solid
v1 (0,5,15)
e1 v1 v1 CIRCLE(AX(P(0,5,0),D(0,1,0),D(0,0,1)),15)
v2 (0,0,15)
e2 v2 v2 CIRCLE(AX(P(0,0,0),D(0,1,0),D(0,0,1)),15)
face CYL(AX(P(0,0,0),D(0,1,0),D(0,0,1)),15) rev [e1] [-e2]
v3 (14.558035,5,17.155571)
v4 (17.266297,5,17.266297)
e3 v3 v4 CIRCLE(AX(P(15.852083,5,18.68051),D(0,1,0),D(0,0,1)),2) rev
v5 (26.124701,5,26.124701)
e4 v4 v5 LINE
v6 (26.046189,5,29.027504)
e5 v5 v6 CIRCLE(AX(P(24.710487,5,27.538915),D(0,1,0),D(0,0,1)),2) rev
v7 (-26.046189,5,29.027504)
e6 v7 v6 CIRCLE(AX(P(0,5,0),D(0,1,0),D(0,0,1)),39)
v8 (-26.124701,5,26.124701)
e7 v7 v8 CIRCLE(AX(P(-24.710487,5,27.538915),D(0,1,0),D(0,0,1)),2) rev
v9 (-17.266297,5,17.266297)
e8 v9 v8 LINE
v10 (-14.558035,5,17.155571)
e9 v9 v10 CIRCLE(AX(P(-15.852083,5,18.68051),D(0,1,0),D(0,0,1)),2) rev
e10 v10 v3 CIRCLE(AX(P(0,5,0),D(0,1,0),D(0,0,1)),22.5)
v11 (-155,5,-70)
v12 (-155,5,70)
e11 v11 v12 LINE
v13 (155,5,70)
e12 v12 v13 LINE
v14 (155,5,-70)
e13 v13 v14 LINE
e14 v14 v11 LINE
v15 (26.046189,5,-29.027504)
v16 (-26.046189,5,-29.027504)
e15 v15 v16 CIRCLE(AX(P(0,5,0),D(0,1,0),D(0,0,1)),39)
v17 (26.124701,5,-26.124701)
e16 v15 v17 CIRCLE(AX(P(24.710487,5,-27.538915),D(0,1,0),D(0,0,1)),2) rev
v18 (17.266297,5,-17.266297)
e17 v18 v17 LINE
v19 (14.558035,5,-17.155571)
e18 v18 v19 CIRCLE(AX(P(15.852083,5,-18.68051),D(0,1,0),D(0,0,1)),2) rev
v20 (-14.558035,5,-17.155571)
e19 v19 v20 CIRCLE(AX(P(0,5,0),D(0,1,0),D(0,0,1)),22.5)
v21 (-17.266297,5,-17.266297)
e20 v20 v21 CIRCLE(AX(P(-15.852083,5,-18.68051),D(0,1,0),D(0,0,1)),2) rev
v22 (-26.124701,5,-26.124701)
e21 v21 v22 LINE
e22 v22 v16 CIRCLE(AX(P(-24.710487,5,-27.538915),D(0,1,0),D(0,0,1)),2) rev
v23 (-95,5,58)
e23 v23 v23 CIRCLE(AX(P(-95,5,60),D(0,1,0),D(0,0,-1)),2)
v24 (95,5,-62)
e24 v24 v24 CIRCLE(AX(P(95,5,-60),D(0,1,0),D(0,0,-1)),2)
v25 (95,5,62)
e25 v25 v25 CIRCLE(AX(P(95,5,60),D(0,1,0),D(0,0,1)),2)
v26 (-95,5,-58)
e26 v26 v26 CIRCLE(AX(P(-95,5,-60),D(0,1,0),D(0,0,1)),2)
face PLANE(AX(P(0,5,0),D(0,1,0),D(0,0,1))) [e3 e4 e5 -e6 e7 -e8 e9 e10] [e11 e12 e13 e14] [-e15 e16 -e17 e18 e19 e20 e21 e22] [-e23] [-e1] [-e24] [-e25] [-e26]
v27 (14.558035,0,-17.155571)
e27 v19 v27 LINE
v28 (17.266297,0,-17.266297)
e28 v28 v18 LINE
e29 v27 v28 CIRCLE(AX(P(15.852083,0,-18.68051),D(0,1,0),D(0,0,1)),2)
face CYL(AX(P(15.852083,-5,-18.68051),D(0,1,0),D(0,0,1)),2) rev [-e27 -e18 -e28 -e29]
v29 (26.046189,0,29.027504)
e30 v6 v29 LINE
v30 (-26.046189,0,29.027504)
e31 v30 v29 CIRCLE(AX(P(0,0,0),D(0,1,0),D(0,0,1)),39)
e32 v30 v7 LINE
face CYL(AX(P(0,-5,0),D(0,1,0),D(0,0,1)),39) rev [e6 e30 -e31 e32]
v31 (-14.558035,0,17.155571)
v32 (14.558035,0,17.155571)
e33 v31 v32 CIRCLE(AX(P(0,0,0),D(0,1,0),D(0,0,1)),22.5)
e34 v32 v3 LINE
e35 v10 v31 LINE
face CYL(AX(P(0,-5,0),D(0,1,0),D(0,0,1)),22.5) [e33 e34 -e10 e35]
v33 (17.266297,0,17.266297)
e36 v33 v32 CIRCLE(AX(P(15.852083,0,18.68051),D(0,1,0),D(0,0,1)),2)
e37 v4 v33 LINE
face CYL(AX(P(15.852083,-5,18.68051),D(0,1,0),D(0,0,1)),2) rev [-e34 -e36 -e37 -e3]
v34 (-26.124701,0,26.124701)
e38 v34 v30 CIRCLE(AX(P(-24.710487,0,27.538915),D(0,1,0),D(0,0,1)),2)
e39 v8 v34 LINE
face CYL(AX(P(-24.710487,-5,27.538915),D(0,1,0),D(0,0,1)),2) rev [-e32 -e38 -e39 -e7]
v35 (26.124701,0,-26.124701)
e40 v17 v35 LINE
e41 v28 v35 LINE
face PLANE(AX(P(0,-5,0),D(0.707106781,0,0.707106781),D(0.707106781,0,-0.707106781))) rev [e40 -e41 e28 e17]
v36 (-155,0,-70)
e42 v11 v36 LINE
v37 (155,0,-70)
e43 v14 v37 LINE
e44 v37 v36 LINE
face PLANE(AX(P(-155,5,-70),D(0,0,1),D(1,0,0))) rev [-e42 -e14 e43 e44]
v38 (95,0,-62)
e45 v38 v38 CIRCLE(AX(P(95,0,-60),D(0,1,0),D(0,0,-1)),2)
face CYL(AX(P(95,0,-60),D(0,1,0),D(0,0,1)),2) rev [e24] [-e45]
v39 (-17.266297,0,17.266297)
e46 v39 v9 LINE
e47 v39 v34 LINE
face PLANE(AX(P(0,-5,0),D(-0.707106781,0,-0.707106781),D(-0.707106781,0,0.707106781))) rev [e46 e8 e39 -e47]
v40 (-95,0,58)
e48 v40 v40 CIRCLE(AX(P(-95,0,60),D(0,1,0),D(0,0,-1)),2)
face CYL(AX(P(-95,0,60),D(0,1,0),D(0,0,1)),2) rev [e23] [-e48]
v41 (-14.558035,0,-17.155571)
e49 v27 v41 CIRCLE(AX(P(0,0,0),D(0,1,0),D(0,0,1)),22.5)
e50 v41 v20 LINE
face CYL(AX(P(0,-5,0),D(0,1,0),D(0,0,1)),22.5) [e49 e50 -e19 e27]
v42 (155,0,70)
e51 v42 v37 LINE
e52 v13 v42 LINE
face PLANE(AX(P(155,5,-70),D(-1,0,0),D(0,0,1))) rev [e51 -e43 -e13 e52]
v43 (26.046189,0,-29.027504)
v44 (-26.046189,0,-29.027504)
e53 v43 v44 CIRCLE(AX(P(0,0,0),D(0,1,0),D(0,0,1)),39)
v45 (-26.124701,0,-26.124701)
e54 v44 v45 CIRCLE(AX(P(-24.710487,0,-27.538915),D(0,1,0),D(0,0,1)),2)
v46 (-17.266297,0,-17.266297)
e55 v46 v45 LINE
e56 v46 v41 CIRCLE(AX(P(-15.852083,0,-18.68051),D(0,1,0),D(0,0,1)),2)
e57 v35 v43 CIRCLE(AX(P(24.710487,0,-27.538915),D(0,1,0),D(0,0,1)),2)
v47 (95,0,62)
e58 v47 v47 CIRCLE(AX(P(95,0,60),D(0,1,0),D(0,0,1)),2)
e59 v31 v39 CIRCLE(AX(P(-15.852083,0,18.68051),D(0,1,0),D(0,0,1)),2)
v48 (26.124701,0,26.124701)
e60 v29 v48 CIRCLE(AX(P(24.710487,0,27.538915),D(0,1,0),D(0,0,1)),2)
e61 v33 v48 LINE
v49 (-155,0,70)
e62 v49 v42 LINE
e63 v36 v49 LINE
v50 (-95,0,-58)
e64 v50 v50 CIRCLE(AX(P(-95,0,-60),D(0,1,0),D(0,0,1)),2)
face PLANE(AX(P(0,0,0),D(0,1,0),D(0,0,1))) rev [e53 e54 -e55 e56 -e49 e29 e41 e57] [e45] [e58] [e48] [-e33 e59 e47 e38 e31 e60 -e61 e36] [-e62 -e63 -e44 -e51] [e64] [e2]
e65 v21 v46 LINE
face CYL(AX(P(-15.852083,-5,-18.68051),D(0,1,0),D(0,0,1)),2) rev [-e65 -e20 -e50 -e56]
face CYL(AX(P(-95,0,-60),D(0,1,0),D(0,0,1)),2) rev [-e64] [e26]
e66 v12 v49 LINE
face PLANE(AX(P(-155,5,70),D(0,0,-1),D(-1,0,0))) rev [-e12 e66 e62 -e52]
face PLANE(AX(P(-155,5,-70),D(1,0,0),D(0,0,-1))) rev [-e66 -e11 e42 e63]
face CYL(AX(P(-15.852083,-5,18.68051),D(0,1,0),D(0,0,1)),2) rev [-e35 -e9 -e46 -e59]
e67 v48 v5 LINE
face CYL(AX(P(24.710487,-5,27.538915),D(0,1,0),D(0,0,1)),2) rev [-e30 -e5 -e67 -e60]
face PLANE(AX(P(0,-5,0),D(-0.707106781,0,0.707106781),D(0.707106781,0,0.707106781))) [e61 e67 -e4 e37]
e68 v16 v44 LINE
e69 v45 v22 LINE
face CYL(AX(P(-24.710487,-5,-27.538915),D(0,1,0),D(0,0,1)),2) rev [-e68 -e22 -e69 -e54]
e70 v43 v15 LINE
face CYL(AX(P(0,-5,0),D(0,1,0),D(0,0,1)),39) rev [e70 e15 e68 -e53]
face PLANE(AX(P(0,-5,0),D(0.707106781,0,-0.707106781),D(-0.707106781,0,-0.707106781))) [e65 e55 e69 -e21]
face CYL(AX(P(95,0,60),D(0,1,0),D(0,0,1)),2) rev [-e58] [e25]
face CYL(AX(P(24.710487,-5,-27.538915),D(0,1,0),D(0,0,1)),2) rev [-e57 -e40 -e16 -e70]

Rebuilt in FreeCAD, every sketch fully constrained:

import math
import FreeCAD as App
import Part
import Sketcher
Q = App.Units.Quantity


def edges_at(feature, points):
    """Names of the edges that pass closest to the given points."""
    edges = feature.Shape.Edges
    near = lambda p: min(range(len(edges)), key=lambda i: edges[i].distToShape(Part.Vertex(*p))[0])
    return sorted({f"Edge{near(p) + 1}" for p in points})


def add_polygon(sketch, points):
    """Adds a closed chain of lines whose ends are joined by coincident constraints."""
    first, n = sketch.GeometryCount, len(points)
    for a, b in zip(points, points[1:] + points[:1]):
        sketch.addGeometry(Part.LineSegment(App.Vector(*a, 0), App.Vector(*b, 0)), False)
    for i in range(n):
        sketch.addConstraint(Sketcher.Constraint("Coincident", first + i, 2, first + (i + 1) % n, 1))

doc = App.newDocument("Part")
params = doc.addObject("Spreadsheet::Sheet", "Params")
for row, (alias, value) in enumerate([
    ("sketch1_width", "310 mm"),
    ("sketch1_height", "140 mm"),
    ("pad1_length", "5 mm"),
    ("sketch2_diameter", "30 mm"),
    ("sketch3_diameter", "4 mm"),
    ("sketch4_radius", "39 mm"),
    ("sketch4_radius2", "22.5 mm"),
    ("pocket3_length", "10 mm"),
    ("fillet_radius", "2 mm"),
], start=1):
    params.set(f"A{row}", alias)
    params.set(f"B{row}", "=" + value)
    params.setAlias(f"B{row}", alias)

body = doc.addObject("PartDesign::Body", "Body")

# Sketch on XZ plane
sketch1 = body.newObject("Sketcher::SketchObject", "Sketch")
sketch1.AttachmentSupport = (doc.getObject("XZ_Plane"), [""])
sketch1.MapMode = "FlatFace"
add_polygon(sketch1, [(-155, -70), (-155, 70), (155, 70), (155, -70)])  # lines 0-3
sketch1.addConstraint(Sketcher.Constraint("Vertical", 0))
sketch1.addConstraint(Sketcher.Constraint("Horizontal", 1))
sketch1.addConstraint(Sketcher.Constraint("Vertical", 2))
sketch1.addConstraint(Sketcher.Constraint("Horizontal", 3))
sketch1.addConstraint(Sketcher.Constraint("Symmetric", 0, 2, 2, 2, -1, 1))
sketch1.addConstraint(Sketcher.Constraint("DistanceX", 1, 1, 1, 2, Q("310 mm")))
sketch1.addConstraint(Sketcher.Constraint("DistanceY", 0, 1, 0, 2, Q("140 mm")))
sketch1.setExpression("Constraints[9]", "Params.sketch1_width")
sketch1.setExpression("Constraints[10]", "Params.sketch1_height")
pad1 = body.newObject("PartDesign::Pad", "Pad")
pad1.Profile = sketch1
pad1.setExpression("Length", "Params.pad1_length")
pad1.Reversed = True

# Sketch on XZ plane
sketch2 = body.newObject("Sketcher::SketchObject", "Sketch001")
sketch2.AttachmentSupport = (doc.getObject("XZ_Plane"), [""])
sketch2.MapMode = "FlatFace"
sketch2.AttachmentOffset = App.Placement(App.Vector(0, 0, -5), App.Rotation())
sketch2.addGeometry(Part.Circle(App.Vector(0, 0, 0), App.Vector(0, 0, 1), 15), False)
sketch2.addConstraint(Sketcher.Constraint("Coincident", 0, 3, -1, 1))
sketch2.addConstraint(Sketcher.Constraint("Diameter", 0, Q("30 mm")))
sketch2.setExpression("Constraints[1]", "Params.sketch2_diameter")
pocket1 = body.newObject("PartDesign::Pocket", "Pocket")
pocket1.Profile = sketch2
pocket1.Type = "ThroughAll"
pocket1.Reversed = True

# Sketch on XZ plane
sketch3 = body.newObject("Sketcher::SketchObject", "Sketch002")
sketch3.AttachmentSupport = (doc.getObject("XZ_Plane"), [""])
sketch3.MapMode = "FlatFace"
sketch3.AttachmentOffset = App.Placement(App.Vector(0, 0, -5), App.Rotation())
sketch3.addGeometry(Part.Circle(App.Vector(-95, -60, 0), App.Vector(0, 0, 1), 2), False)
sketch3.addGeometry(Part.Circle(App.Vector(95, -60, 0), App.Vector(0, 0, 1), 2), False)
sketch3.addGeometry(Part.Circle(App.Vector(95, 60, 0), App.Vector(0, 0, 1), 2), False)
sketch3.addGeometry(Part.Circle(App.Vector(-95, 60, 0), App.Vector(0, 0, 1), 2), False)
sketch3.addConstraint(Sketcher.Constraint("Equal", 0, 1))
sketch3.addConstraint(Sketcher.Constraint("Equal", 1, 2))
sketch3.addConstraint(Sketcher.Constraint("Equal", 2, 3))
sketch3.addConstraint(Sketcher.Constraint("Symmetric", 0, 3, 2, 3, -1, 1))
sketch3.addConstraint(Sketcher.Constraint("Symmetric", 1, 3, 3, 3, -1, 1))
sketch3.addConstraint(Sketcher.Constraint("Symmetric", 0, 3, 1, 3, -2))
sketch3.addConstraint(Sketcher.Constraint("Diameter", 0, Q("4 mm")))
sketch3.addConstraint(Sketcher.Constraint("DistanceX", 0, 3, -1, 1, Q("95 mm")))
sketch3.addConstraint(Sketcher.Constraint("DistanceY", 0, 3, -1, 1, Q("60 mm")))
sketch3.setExpression("Constraints[6]", "Params.sketch3_diameter")
pocket2 = body.newObject("PartDesign::Pocket", "Pocket001")
pocket2.Profile = sketch3
pocket2.Type = "ThroughAll"
pocket2.Reversed = True

# Sketch on XZ plane
sketch4 = body.newObject("Sketcher::SketchObject", "Sketch003")
sketch4.AttachmentSupport = (doc.getObject("XZ_Plane"), [""])
sketch4.MapMode = "FlatFace"
sketch4.AttachmentOffset = App.Placement(App.Vector(0, 0, -5), App.Rotation())
sketch4.addGeometry(Part.LineSegment(App.Vector(28, 28, 0), App.Vector(16, 16, 0)), False)
sketch4.addGeometry(Part.ArcOfCircle(Part.Circle(App.Vector(0, 0, 0), App.Vector(0, 0, 1), 23), math.radians(45), math.radians(135)), False)
sketch4.addGeometry(Part.LineSegment(App.Vector(-16, 16, 0), App.Vector(-28, 28, 0)), False)
sketch4.addGeometry(Part.ArcOfCircle(Part.Circle(App.Vector(0, 0, 0), App.Vector(0, 0, 1), 39), math.radians(45), math.radians(135)), False)
sketch4.addGeometry(Part.ArcOfCircle(Part.Circle(App.Vector(0, 0, 0), App.Vector(0, 0, 1), 23), math.radians(-135), math.radians(-45)), False)
sketch4.addGeometry(Part.LineSegment(App.Vector(16, -16, 0), App.Vector(28, -28, 0)), False)
sketch4.addGeometry(Part.ArcOfCircle(Part.Circle(App.Vector(0, 0, 0), App.Vector(0, 0, 1), 39), math.radians(-135), math.radians(-45)), False)
sketch4.addGeometry(Part.LineSegment(App.Vector(-28, -28, 0), App.Vector(-16, -16, 0)), False)
sketch4.addConstraint(Sketcher.Constraint("Coincident", 0, 2, 1, 1))
sketch4.addConstraint(Sketcher.Constraint("Coincident", 1, 2, 2, 1))
sketch4.addConstraint(Sketcher.Constraint("Coincident", 2, 2, 3, 2))
sketch4.addConstraint(Sketcher.Constraint("Coincident", 3, 1, 0, 1))
sketch4.addConstraint(Sketcher.Constraint("Coincident", 4, 2, 5, 1))
sketch4.addConstraint(Sketcher.Constraint("Coincident", 5, 2, 6, 2))
sketch4.addConstraint(Sketcher.Constraint("Coincident", 6, 1, 7, 1))
sketch4.addConstraint(Sketcher.Constraint("Coincident", 7, 2, 4, 1))
sketch4.addConstraint(Sketcher.Constraint("Coincident", 1, 3, -1, 1))
sketch4.addConstraint(Sketcher.Constraint("Coincident", 3, 3, -1, 1))
sketch4.addConstraint(Sketcher.Constraint("Coincident", 4, 3, -1, 1))
sketch4.addConstraint(Sketcher.Constraint("Coincident", 6, 3, -1, 1))
sketch4.addConstraint(Sketcher.Constraint("Equal", 1, 4))
sketch4.addConstraint(Sketcher.Constraint("Equal", 3, 6))
sketch4.addConstraint(Sketcher.Constraint("Perpendicular", 0, 2))
sketch4.addConstraint(Sketcher.Constraint("Parallel", 2, 5))
sketch4.addConstraint(Sketcher.Constraint("Perpendicular", 5, 7))
sketch4.addConstraint(Sketcher.Constraint("Horizontal", 0, 2, 1, 2))
sketch4.addConstraint(Sketcher.Constraint("Horizontal", 2, 2, 3, 1))
sketch4.addConstraint(Sketcher.Constraint("Horizontal", 5, 2, 6, 1))
sketch4.addConstraint(Sketcher.Constraint("Vertical", 0, 2, 4, 2))
sketch4.addConstraint(Sketcher.Constraint("Radius", 3, Q("39 mm")))
sketch4.addConstraint(Sketcher.Constraint("Radius", 1, Q("22.5 mm")))
sketch4.addConstraint(Sketcher.Constraint("DistanceX", -1, 1, 0, 2, Q("15.909903 mm")))
sketch4.setExpression("Constraints[21]", "Params.sketch4_radius")
sketch4.setExpression("Constraints[22]", "Params.sketch4_radius2")
pocket3 = body.newObject("PartDesign::Pocket", "Pocket002")
pocket3.Profile = sketch4
pocket3.setExpression("Length", "Params.pocket3_length")
pocket3.Reversed = True
doc.recompute()

fillet = body.newObject("PartDesign::Fillet", "Fillet")
fillet.Base = (pocket3, edges_at(pocket3, [
    (-15.91, 2.5, 15.91),
    (15.91, 2.5, 15.91),
    (27.577, 2.5, 27.577),
    (-27.577, 2.5, 27.577),
    (15.91, 2.5, -15.91),
    (-15.91, 2.5, -15.91),
    (-27.577, 2.5, -27.577),
    (27.577, 2.5, -27.577),
]))
fillet.setExpression("Radius", "Params.fillet_radius")

doc.recompute()
